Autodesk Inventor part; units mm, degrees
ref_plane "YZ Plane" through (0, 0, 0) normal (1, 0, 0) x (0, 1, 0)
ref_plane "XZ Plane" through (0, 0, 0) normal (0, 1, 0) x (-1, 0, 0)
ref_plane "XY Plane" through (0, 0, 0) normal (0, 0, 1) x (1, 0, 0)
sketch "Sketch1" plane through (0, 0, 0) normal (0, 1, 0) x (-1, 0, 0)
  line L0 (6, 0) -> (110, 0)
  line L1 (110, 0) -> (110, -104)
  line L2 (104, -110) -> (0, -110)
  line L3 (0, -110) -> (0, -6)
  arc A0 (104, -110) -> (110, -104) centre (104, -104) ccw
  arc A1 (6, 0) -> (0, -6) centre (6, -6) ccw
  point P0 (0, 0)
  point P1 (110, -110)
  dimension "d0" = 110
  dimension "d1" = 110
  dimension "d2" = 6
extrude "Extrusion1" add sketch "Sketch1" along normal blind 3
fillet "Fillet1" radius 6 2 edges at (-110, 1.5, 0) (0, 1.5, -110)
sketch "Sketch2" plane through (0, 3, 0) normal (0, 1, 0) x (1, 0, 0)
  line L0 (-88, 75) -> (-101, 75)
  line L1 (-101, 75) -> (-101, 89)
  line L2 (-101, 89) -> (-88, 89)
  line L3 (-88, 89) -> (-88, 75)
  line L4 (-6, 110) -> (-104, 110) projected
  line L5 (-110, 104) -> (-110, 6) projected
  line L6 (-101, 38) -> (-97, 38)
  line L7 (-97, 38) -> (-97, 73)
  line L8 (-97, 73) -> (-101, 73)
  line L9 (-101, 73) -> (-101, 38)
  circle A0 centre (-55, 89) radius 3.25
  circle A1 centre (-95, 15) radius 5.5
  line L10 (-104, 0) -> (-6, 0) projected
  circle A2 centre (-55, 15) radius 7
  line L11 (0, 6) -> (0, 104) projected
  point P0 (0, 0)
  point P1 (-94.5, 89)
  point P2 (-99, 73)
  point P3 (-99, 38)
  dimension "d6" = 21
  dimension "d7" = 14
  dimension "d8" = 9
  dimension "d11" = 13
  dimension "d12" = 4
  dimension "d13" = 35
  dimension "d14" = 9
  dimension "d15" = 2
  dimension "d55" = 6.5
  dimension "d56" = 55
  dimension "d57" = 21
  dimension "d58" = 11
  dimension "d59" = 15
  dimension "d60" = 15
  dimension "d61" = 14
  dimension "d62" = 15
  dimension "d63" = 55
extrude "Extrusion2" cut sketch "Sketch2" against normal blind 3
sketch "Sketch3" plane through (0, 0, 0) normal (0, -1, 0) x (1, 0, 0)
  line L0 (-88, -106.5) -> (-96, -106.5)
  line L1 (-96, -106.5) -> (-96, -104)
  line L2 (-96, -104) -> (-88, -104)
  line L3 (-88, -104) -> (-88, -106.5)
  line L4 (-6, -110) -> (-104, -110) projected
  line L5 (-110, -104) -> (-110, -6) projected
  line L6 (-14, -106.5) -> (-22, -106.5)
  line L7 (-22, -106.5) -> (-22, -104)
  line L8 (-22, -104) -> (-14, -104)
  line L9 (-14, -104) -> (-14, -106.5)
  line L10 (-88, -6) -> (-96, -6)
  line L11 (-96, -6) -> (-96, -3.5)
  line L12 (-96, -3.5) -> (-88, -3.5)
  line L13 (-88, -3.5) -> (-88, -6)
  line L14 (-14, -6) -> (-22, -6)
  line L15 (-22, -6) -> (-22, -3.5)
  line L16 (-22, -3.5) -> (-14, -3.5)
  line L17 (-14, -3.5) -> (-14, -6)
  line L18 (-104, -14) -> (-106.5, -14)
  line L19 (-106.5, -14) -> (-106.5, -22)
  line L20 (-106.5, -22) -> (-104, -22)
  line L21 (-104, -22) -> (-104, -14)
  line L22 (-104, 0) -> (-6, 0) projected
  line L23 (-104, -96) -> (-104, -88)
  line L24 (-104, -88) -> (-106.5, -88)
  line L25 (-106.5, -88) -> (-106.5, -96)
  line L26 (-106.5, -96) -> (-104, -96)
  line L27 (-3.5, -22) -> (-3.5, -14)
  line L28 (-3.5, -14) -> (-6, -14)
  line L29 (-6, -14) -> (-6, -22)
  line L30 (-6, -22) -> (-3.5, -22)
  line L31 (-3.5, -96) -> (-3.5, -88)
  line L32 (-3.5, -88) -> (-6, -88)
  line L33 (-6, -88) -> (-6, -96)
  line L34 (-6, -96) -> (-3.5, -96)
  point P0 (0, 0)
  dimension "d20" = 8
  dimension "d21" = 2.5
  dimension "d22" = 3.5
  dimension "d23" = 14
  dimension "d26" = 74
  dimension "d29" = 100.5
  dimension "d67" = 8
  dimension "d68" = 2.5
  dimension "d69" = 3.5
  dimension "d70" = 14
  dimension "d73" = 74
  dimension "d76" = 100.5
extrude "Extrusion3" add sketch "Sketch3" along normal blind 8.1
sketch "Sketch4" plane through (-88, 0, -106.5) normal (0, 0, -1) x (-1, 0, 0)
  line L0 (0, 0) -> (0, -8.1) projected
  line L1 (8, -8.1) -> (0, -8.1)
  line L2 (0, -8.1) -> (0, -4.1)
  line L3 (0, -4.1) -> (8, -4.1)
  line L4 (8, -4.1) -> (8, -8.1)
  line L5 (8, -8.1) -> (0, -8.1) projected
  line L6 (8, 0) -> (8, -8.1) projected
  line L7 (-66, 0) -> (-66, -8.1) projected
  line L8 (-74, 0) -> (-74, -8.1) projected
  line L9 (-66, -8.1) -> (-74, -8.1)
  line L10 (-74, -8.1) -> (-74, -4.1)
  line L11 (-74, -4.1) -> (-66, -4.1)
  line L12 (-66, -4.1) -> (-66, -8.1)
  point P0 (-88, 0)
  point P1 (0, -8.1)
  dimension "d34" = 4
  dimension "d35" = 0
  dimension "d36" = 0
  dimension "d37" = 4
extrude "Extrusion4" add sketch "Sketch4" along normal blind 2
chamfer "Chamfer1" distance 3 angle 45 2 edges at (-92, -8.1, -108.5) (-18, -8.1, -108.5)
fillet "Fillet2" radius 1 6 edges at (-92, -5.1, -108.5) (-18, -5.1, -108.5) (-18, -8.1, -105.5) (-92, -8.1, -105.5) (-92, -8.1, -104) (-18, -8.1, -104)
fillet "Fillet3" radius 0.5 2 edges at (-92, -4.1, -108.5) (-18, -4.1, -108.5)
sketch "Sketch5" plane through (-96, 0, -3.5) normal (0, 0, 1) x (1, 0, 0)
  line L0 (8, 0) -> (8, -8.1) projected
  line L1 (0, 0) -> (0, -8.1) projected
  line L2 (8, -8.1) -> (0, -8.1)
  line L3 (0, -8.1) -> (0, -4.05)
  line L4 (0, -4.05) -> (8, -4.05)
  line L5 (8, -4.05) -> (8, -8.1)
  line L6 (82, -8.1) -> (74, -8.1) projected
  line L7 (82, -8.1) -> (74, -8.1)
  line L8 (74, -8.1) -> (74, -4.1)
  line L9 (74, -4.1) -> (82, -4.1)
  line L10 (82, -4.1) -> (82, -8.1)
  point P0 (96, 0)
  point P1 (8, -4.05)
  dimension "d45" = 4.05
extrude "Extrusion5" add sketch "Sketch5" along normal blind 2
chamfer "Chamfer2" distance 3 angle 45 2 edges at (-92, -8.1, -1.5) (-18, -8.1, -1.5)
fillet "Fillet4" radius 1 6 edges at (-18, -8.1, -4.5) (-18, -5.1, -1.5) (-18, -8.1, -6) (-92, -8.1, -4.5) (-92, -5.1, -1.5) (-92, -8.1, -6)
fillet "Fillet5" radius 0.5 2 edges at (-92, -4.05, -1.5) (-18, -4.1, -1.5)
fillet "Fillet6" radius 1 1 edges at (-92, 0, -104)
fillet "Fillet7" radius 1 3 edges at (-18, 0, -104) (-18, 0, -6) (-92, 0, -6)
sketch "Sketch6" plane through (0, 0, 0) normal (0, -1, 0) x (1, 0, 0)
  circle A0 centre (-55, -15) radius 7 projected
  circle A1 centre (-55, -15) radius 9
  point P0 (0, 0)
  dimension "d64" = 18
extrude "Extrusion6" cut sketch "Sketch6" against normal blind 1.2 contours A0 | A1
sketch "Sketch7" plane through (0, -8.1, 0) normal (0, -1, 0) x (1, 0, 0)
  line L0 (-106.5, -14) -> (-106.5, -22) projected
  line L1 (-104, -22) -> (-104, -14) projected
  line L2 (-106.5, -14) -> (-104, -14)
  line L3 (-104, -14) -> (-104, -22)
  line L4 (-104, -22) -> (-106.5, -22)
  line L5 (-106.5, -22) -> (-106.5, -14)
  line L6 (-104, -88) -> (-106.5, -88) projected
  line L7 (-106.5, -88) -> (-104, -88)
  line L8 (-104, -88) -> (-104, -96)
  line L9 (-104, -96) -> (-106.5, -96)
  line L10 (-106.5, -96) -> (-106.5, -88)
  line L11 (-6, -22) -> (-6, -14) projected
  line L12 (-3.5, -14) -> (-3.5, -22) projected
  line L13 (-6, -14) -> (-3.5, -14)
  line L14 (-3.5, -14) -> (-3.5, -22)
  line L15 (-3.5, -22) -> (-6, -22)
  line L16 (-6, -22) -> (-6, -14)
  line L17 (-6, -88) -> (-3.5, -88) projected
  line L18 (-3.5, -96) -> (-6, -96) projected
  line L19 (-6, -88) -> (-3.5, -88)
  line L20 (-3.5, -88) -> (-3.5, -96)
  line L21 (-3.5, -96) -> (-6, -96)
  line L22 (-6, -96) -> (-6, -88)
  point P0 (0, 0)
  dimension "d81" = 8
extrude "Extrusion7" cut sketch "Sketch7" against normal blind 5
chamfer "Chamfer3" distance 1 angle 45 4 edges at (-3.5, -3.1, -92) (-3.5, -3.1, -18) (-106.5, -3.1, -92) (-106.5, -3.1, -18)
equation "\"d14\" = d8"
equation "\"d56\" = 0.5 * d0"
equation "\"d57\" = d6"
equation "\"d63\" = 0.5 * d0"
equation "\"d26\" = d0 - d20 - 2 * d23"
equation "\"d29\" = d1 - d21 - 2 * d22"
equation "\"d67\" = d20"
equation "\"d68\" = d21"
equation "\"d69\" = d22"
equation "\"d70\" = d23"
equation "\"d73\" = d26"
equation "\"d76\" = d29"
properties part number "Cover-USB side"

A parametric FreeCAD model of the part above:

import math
import FreeCAD as App
import Part
import Sketcher


def edges_at(feature, points):
    """Names of the edges that pass closest to the given points."""
    edges = feature.Shape.Edges
    near = lambda p: min(range(len(edges)), key=lambda i: edges[i].distToShape(Part.Vertex(*p))[0])
    return sorted({f"Edge{near(p) + 1}" for p in points})


def add_polygon(sketch, points):
    """Adds a closed chain of lines whose ends are joined by coincident constraints."""
    first, n = sketch.GeometryCount, len(points)
    for a, b in zip(points, points[1:] + points[:1]):
        sketch.addGeometry(Part.LineSegment(App.Vector(*a, 0), App.Vector(*b, 0)), False)
    for i in range(n):
        sketch.addConstraint(Sketcher.Constraint("Coincident", first + i, 2, first + (i + 1) % n, 1))

doc = App.newDocument("Part")
body = doc.addObject("PartDesign::Body", "Body")

# Sketch on XZ plane
sketch1 = body.newObject("Sketcher::SketchObject", "Sketch")
sketch1.AttachmentSupport = (doc.getObject("XZ_Plane"), [""])
sketch1.MapMode = "FlatFace"
sketch1.addGeometry([
    Part.LineSegment(App.Vector(-110, 0, 0), App.Vector(-6, 0, 0)),  # 0
    Part.ArcOfCircle(Part.Circle(App.Vector(-6, -6, 0), App.Vector(0, 0, 1), 6), math.radians(0), math.radians(90)),  # 1
    Part.LineSegment(App.Vector(0, -6, 0), App.Vector(0, -110, 0)),  # 2
    Part.LineSegment(App.Vector(0, -110, 0), App.Vector(-104, -110, 0)),  # 3
    Part.ArcOfCircle(Part.Circle(App.Vector(-104, -104, 0), App.Vector(0, 0, 1), 6), math.radians(180), math.radians(270)),  # 4
    Part.LineSegment(App.Vector(-110, -104, 0), App.Vector(-110, 0, 0)),  # 5
], False)
sketch1.addConstraint([
    Sketcher.Constraint("Tangent", 0, 2, 1, 2),
    Sketcher.Constraint("Tangent", 1, 1, 2, 1),
    Sketcher.Constraint("Coincident", 2, 2, 3, 1),
    Sketcher.Constraint("Tangent", 3, 2, 4, 2),
    Sketcher.Constraint("Tangent", 4, 1, 5, 1),
    Sketcher.Constraint("Coincident", 5, 2, 0, 1),
    Sketcher.Constraint("Horizontal", 0),
    Sketcher.Constraint("Vertical", 2),
    Sketcher.Constraint("Horizontal", 3),
    Sketcher.Constraint("Vertical", 5),
    Sketcher.Constraint("Equal", 1, 4),
    Sketcher.Constraint("PointOnObject", 0, 2, -1),
    Sketcher.Constraint("PointOnObject", 1, 1, -2),
    Sketcher.Constraint("Equal", 3, 2),
    Sketcher.Constraint("Radius", 1, 6.0),
    Sketcher.Constraint("DistanceY", 2, 2, -1, 1, 110.0),
])
pad1 = body.newObject("PartDesign::Pad", "Pad")
pad1.Profile = sketch1
pad1.Length = 3
pad1.Reversed = True
doc.recompute()

fillet = body.newObject("PartDesign::Fillet", "Fillet")
fillet.Base = (pad1, edges_at(pad1, [(-110, 1.5, 0), (0, 1.5, -110)]))
fillet.Radius = 6

# Sketch on XZ plane
sketch2 = body.newObject("Sketcher::SketchObject", "Sketch001")
sketch2.AttachmentSupport = (doc.getObject("XZ_Plane"), [""])
sketch2.MapMode = "FlatFace"
sketch2.AttachmentOffset = App.Placement(App.Vector(0, 0, -3), App.Rotation())
add_polygon(sketch2, [(-101, -75), (-88, -75), (-88, -89), (-101, -89)])  # lines 0-3
add_polygon(sketch2, [(-101, -73), (-101, -38), (-97, -38), (-97, -73)])  # lines 4-7
sketch2.addGeometry(Part.Circle(App.Vector(-55, -89, 0), App.Vector(0, 0, 1), 3.25), False)  # 8
sketch2.addGeometry(Part.Circle(App.Vector(-95, -15, 0), App.Vector(0, 0, 1), 5.5), False)  # 9
sketch2.addGeometry(Part.Circle(App.Vector(-55, -15, 0), App.Vector(0, 0, 1), 7), False)  # 10
sketch2.addConstraint([
    Sketcher.Constraint("Horizontal", 0),
    Sketcher.Constraint("Vertical", 1),
    Sketcher.Constraint("Horizontal", 2),
    Sketcher.Constraint("Vertical", 3),
    Sketcher.Constraint("Vertical", 4),
    Sketcher.Constraint("Horizontal", 5),
    Sketcher.Constraint("Vertical", 6),
    Sketcher.Constraint("Horizontal", 7),
    Sketcher.Constraint("Horizontal", 9, 3, 10, 3),
    Sketcher.Constraint("Horizontal", 8, 3, 1, 2),
    Sketcher.Constraint("Vertical", 8, 3, 10, 3),
    Sketcher.Constraint("Vertical", 3, 2, 4, 2),
    Sketcher.Constraint("Diameter", 9, 11.0),
    Sketcher.Constraint("Diameter", 10, 14.0),
    Sketcher.Constraint("Diameter", 8, 6.5),
    Sketcher.Constraint("DistanceX", 0, 1, 0, 2, 13.0),
    Sketcher.Constraint("DistanceX", 5, 1, 5, 2, 4.0),
    Sketcher.Constraint("DistanceY", 1, 2, 1, 1, 14.0),
    Sketcher.Constraint("DistanceY", 4, 1, 4, 2, 35.0),
    Sketcher.Constraint("DistanceX", 8, 3, -1, 1, 55.0),
    Sketcher.Constraint("DistanceY", 9, 3, -1, 1, 15.0),
    Sketcher.Constraint("DistanceX", 5, 2, 9, 3, 2.0),
    Sketcher.Constraint("DistanceY", 3, 2, 6, 2, 2.0),
    Sketcher.Constraint("DistanceY", 8, 3, -1, 1, 89.0),
    Sketcher.Constraint("DistanceX", 9, 3, -1, 1, 95.0),
])
pocket1 = body.newObject("PartDesign::Pocket", "Pocket")
pocket1.Profile = sketch2
pocket1.Length = 3
pocket1.Reversed = True

# Sketch on XZ plane
sketch3 = body.newObject("Sketcher::SketchObject", "Sketch002")
sketch3.AttachmentSupport = (doc.getObject("XZ_Plane"), [""])
sketch3.MapMode = "FlatFace"
add_polygon(sketch3, [(-96, -106.5), (-88, -106.5), (-88, -104), (-96, -104)])  # lines 0-3
add_polygon(sketch3, [(-22, -106.5), (-14, -106.5), (-14, -104), (-22, -104)])  # lines 4-7
add_polygon(sketch3, [(-96, -6), (-88, -6), (-88, -3.5), (-96, -3.5)])  # lines 8-11
add_polygon(sketch3, [(-22, -6), (-14, -6), (-14, -3.5), (-22, -3.5)])  # lines 12-15
add_polygon(sketch3, [(-104, -22), (-104, -14), (-106.5, -14), (-106.5, -22)])  # lines 16-19
add_polygon(sketch3, [(-106.5, -96), (-104, -96), (-104, -88), (-106.5, -88)])  # lines 20-23
add_polygon(sketch3, [(-6, -22), (-3.5, -22), (-3.5, -14), (-6, -14)])  # lines 24-27
add_polygon(sketch3, [(-6, -96), (-3.5, -96), (-3.5, -88), (-6, -88)])  # lines 28-31
sketch3.addConstraint([
    Sketcher.Constraint("Horizontal", 0),
    Sketcher.Constraint("Vertical", 1),
    Sketcher.Constraint("Horizontal", 2),
    Sketcher.Constraint("Vertical", 3),
    Sketcher.Constraint("Horizontal", 4),
    Sketcher.Constraint("Vertical", 5),
    Sketcher.Constraint("Horizontal", 6),
    Sketcher.Constraint("Vertical", 7),
    Sketcher.Constraint("Horizontal", 8),
    Sketcher.Constraint("Vertical", 9),
    Sketcher.Constraint("Horizontal", 10),
    Sketcher.Constraint("Vertical", 11),
    Sketcher.Constraint("Horizontal", 12),
    Sketcher.Constraint("Vertical", 13),
    Sketcher.Constraint("Horizontal", 14),
    Sketcher.Constraint("Vertical", 15),
    Sketcher.Constraint("Vertical", 16),
    Sketcher.Constraint("Horizontal", 17),
    Sketcher.Constraint("Vertical", 18),
    Sketcher.Constraint("Horizontal", 19),
    Sketcher.Constraint("Horizontal", 20),
    Sketcher.Constraint("Vertical", 21),
    Sketcher.Constraint("Horizontal", 22),
    Sketcher.Constraint("Vertical", 23),
    Sketcher.Constraint("Horizontal", 24),
    Sketcher.Constraint("Vertical", 25),
    Sketcher.Constraint("Horizontal", 26),
    Sketcher.Constraint("Vertical", 27),
    Sketcher.Constraint("Horizontal", 28),
    Sketcher.Constraint("Vertical", 29),
    Sketcher.Constraint("Horizontal", 30),
    Sketcher.Constraint("Vertical", 31),
    Sketcher.Constraint("Horizontal", 3, 2, 4, 2),
    Sketcher.Constraint("Horizontal", 2, 2, 5, 2),
    Sketcher.Constraint("Horizontal", 11, 2, 12, 2),
    Sketcher.Constraint("Horizontal", 10, 2, 13, 2),
    Sketcher.Constraint("Horizontal", 19, 2, 24, 2),
    Sketcher.Constraint("Horizontal", 17, 2, 25, 2),
    Sketcher.Constraint("Horizontal", 23, 2, 28, 2),
    Sketcher.Constraint("Horizontal", 22, 2, 29, 2),
    Sketcher.Constraint("Vertical", 1, 2, 8, 2),
    Sketcher.Constraint("Vertical", 3, 2, 10, 2),
    Sketcher.Constraint("Vertical", 5, 2, 12, 2),
    Sketcher.Constraint("Vertical", 7, 2, 14, 2),
    Sketcher.Constraint("Vertical", 19, 2, 20, 2),
    Sketcher.Constraint("Vertical", 18, 2, 22, 2),
    Sketcher.Constraint("Vertical", 25, 2, 28, 2),
    Sketcher.Constraint("Vertical", 27, 2, 30, 2),
    Sketcher.Constraint("Equal", 2, 4),
    Sketcher.Constraint("Equal", 22, 24),
    Sketcher.Constraint("Equal", 30, 1),
    Sketcher.Constraint("Equal", 7, 9),
    Sketcher.Constraint("Equal", 14, 16),
    Sketcher.Constraint("Equal", 18, 21),
    Sketcher.Constraint("DistanceX", 0, 1, 0, 2, 8.0),
    Sketcher.Constraint("DistanceX", 17, 2, 17, 1, 2.5),
    Sketcher.Constraint("DistanceX", 4, 2, -1, 1, 14.0),
    Sketcher.Constraint("DistanceY", 16, 2, -1, 1, 14.0),
    Sketcher.Constraint("DistanceX", 0, 2, 4, 2, 74.0),
    Sketcher.Constraint("DistanceX", 16, 2, 11, 2, 8.0),
    Sketcher.Constraint("DistanceY", 16, 2, 11, 2, 8.0),
    Sketcher.Constraint("DistanceY", 2, 2, 20, 2, 8.0),
    Sketcher.Constraint("DistanceY", 20, 2, 19, 2, 74.0),
    Sketcher.Constraint("DistanceX", 12, 2, 26, 2, 8.0),
])
pad2 = body.newObject("PartDesign::Pad", "Pad001")
pad2.Profile = sketch3
pad2.Length = 8.1

# Sketch on XY plane
sketch4 = body.newObject("Sketcher::SketchObject", "Sketch003")
sketch4.AttachmentSupport = (doc.getObject("XY_Plane"), [""])
sketch4.MapMode = "FlatFace"
sketch4.AttachmentOffset = App.Placement(App.Vector(0, 0, -106.5), App.Rotation())
add_polygon(sketch4, [(-96, -4.1), (-88, -4.1), (-88, -8.1), (-96, -8.1)])  # lines 0-3
add_polygon(sketch4, [(-22, -8.1), (-22, -4.1), (-14, -4.1), (-14, -8.1)])  # lines 4-7
sketch4.addConstraint([
    Sketcher.Constraint("Horizontal", 0),
    Sketcher.Constraint("Vertical", 1),
    Sketcher.Constraint("Horizontal", 2),
    Sketcher.Constraint("Vertical", 3),
    Sketcher.Constraint("Vertical", 4),
    Sketcher.Constraint("Horizontal", 5),
    Sketcher.Constraint("Vertical", 6),
    Sketcher.Constraint("Horizontal", 7),
    Sketcher.Constraint("Horizontal", 3, 2, 4, 2),
    Sketcher.Constraint("Horizontal", 2, 2, 6, 2),
    Sketcher.Constraint("Equal", 2, 5),
    Sketcher.Constraint("DistanceY", 1, 2, 1, 1, 4.0),
    Sketcher.Constraint("DistanceX", 0, 1, 0, 2, 8.0),
    Sketcher.Constraint("DistanceX", 0, 2, -1, 1, 88.0),
    Sketcher.Constraint("DistanceX", 4, 2, -1, 1, 22.0),
    Sketcher.Constraint("DistanceY", 0, 2, -1, 1, 4.1),
])
pad3 = body.newObject("PartDesign::Pad", "Pad002")
pad3.Profile = sketch4
pad3.Length = 2
pad3.Reversed = True
doc.recompute()

chamfer = body.newObject("PartDesign::Chamfer", "Chamfer")
chamfer.Base = (pad3, edges_at(pad3, [(-92, -8.1, -108.5), (-18, -8.1, -108.5)]))
chamfer.Size = 3
doc.recompute()

fillet2 = body.newObject("PartDesign::Fillet", "Fillet001")
fillet2.Base = (chamfer, edges_at(chamfer, [
    (-92, -5.1, -108.5),
    (-18, -5.1, -108.5),
    (-18, -8.1, -105.5),
    (-92, -8.1, -105.5),
    (-92, -8.1, -104),
    (-18, -8.1, -104),
]))
fillet2.Radius = 1
doc.recompute()

fillet3 = body.newObject("PartDesign::Fillet", "Fillet002")
fillet3.Base = (fillet2, edges_at(fillet2, [(-92, -4.1, -108.5), (-18, -4.1, -108.5)]))
fillet3.Radius = 0.5

# Sketch on XY plane
sketch5 = body.newObject("Sketcher::SketchObject", "Sketch004")
sketch5.AttachmentSupport = (doc.getObject("XY_Plane"), [""])
sketch5.MapMode = "FlatFace"
sketch5.AttachmentOffset = App.Placement(App.Vector(0, 0, -3.5), App.Rotation())
add_polygon(sketch5, [(-88, -8.1), (-88, -4.05), (-96, -4.05), (-96, -8.1)])  # lines 0-3
add_polygon(sketch5, [(-22, -8.1), (-14, -8.1), (-14, -4.1), (-22, -4.1)])  # lines 4-7
sketch5.addConstraint([
    Sketcher.Constraint("Vertical", 0),
    Sketcher.Constraint("Horizontal", 1),
    Sketcher.Constraint("Vertical", 2),
    Sketcher.Constraint("Horizontal", 3),
    Sketcher.Constraint("Horizontal", 4),
    Sketcher.Constraint("Vertical", 5),
    Sketcher.Constraint("Horizontal", 6),
    Sketcher.Constraint("Vertical", 7),
    Sketcher.Constraint("Horizontal", 3, 2, 4, 2),
    Sketcher.Constraint("Equal", 3, 4),
    Sketcher.Constraint("DistanceY", 0, 1, 0, 2, 4.05),
    Sketcher.Constraint("DistanceX", 1, 2, 1, 1, 8.0),
    Sketcher.Constraint("DistanceY", 5, 1, 5, 2, 4.0),
    Sketcher.Constraint("DistanceY", 0, 2, -1, 1, 4.05),
    Sketcher.Constraint("DistanceX", 0, 2, -1, 1, 88.0),
    Sketcher.Constraint("DistanceX", 4, 2, -1, 1, 14.0),
])
pad4 = body.newObject("PartDesign::Pad", "Pad003")
pad4.Profile = sketch5
pad4.Length = 2
doc.recompute()

chamfer2 = body.newObject("PartDesign::Chamfer", "Chamfer001")
chamfer2.Base = (pad4, edges_at(pad4, [(-92, -8.1, -1.5), (-18, -8.1, -1.5)]))
chamfer2.Size = 3
doc.recompute()

fillet4 = body.newObject("PartDesign::Fillet", "Fillet003")
fillet4.Base = (chamfer2, edges_at(chamfer2, [
    (-18, -8.1, -4.5),
    (-18, -5.1, -1.5),
    (-18, -8.1, -6),
    (-92, -8.1, -4.5),
    (-92, -5.1, -1.5),
    (-92, -8.1, -6),
]))
fillet4.Radius = 1
doc.recompute()

fillet5 = body.newObject("PartDesign::Fillet", "Fillet004")
fillet5.Base = (fillet4, edges_at(fillet4, [(-92, -4.05, -1.5), (-18, -4.1, -1.5)]))
fillet5.Radius = 0.5
doc.recompute()

fillet6 = body.newObject("PartDesign::Fillet", "Fillet005")
fillet6.Base = (fillet5, edges_at(fillet5, [(-92, 0, -104)]))
fillet6.Radius = 1
doc.recompute()

fillet7 = body.newObject("PartDesign::Fillet", "Fillet006")
fillet7.Base = (fillet6, edges_at(fillet6, [(-18, 0, -104), (-18, 0, -6), (-92, 0, -6)]))
fillet7.Radius = 1

# Sketch on XZ plane
sketch6 = body.newObject("Sketcher::SketchObject", "Sketch005")
sketch6.AttachmentSupport = (doc.getObject("XZ_Plane"), [""])
sketch6.MapMode = "FlatFace"
sketch6.addGeometry(Part.Circle(App.Vector(-55, -15, 0), App.Vector(0, 0, 1), 9), False)
sketch6.addConstraint([
    Sketcher.Constraint("Diameter", 0, 18.0),
    Sketcher.Constraint("DistanceX", 0, 3, -1, 1, 55.0),
    Sketcher.Constraint("DistanceY", 0, 3, -1, 1, 15.0),
])
pocket2 = body.newObject("PartDesign::Pocket", "Pocket001")
pocket2.Profile = sketch6
pocket2.Length = 1.2

# Sketch on XZ plane
sketch7 = body.newObject("Sketcher::SketchObject", "Sketch006")
sketch7.AttachmentSupport = (doc.getObject("XZ_Plane"), [""])
sketch7.MapMode = "FlatFace"
sketch7.AttachmentOffset = App.Placement(App.Vector(0, 0, 8.1), App.Rotation())
add_polygon(sketch7, [(-104, -14), (-106.5, -14), (-106.5, -22), (-104, -22)])  # lines 0-3
add_polygon(sketch7, [(-104, -96), (-104, -88), (-106.5, -88), (-106.5, -96)])  # lines 4-7
add_polygon(sketch7, [(-6, -14), (-6, -22), (-3.5, -22), (-3.5, -14)])  # lines 8-11
add_polygon(sketch7, [(-3.5, -88), (-6, -88), (-6, -96), (-3.5, -96)])  # lines 12-15
sketch7.addConstraint([
    Sketcher.Constraint("Horizontal", 0),
    Sketcher.Constraint("Vertical", 1),
    Sketcher.Constraint("Horizontal", 2),
    Sketcher.Constraint("Vertical", 3),
    Sketcher.Constraint("Vertical", 4),
    Sketcher.Constraint("Horizontal", 5),
    Sketcher.Constraint("Vertical", 6),
    Sketcher.Constraint("Horizontal", 7),
    Sketcher.Constraint("Vertical", 8),
    Sketcher.Constraint("Horizontal", 9),
    Sketcher.Constraint("Vertical", 10),
    Sketcher.Constraint("Horizontal", 11),
    Sketcher.Constraint("Horizontal", 12),
    Sketcher.Constraint("Vertical", 13),
    Sketcher.Constraint("Horizontal", 14),
    Sketcher.Constraint("Vertical", 15),
    Sketcher.Constraint("Horizontal", 2, 2, 8, 2),
    Sketcher.Constraint("Horizontal", 3, 2, 10, 2),
    Sketcher.Constraint("Horizontal", 5, 2, 12, 2),
    Sketcher.Constraint("Horizontal", 7, 2, 13, 2),
    Sketcher.Constraint("Vertical", 3, 2, 4, 2),
    Sketcher.Constraint("Vertical", 1, 2, 5, 2),
    Sketcher.Constraint("Vertical", 11, 2, 12, 2),
    Sketcher.Constraint("Vertical", 10, 2, 14, 2),
    Sketcher.Constraint("Equal", 7, 9),
    Sketcher.Constraint("Equal", 3, 4),
    Sketcher.Constraint("DistanceY", 1, 2, 1, 1, 8.0),
    Sketcher.Constraint("DistanceX", 0, 2, 0, 1, 2.5),
    Sketcher.Constraint("DistanceY", 0, 2, -1, 1, 14.0),
    Sketcher.Constraint("DistanceX", 2, 2, -1, 1, 104.0),
    Sketcher.Constraint("DistanceY", 4, 2, -1, 1, 88.0),
    Sketcher.Constraint("DistanceX", 8, 2, -1, 1, 6.0),
])
pocket3 = body.newObject("PartDesign::Pocket", "Pocket002")
pocket3.Profile = sketch7
pocket3.Length = 5
doc.recompute()

chamfer3 = body.newObject("PartDesign::Chamfer", "Chamfer002")
chamfer3.Base = (pocket3, edges_at(pocket3, [
    (-3.5, -3.1, -92),
    (-3.5, -3.1, -18),
    (-106.5, -3.1, -92),
    (-106.5, -3.1, -18),
]))
chamfer3.Size = 1

doc.recompute()
